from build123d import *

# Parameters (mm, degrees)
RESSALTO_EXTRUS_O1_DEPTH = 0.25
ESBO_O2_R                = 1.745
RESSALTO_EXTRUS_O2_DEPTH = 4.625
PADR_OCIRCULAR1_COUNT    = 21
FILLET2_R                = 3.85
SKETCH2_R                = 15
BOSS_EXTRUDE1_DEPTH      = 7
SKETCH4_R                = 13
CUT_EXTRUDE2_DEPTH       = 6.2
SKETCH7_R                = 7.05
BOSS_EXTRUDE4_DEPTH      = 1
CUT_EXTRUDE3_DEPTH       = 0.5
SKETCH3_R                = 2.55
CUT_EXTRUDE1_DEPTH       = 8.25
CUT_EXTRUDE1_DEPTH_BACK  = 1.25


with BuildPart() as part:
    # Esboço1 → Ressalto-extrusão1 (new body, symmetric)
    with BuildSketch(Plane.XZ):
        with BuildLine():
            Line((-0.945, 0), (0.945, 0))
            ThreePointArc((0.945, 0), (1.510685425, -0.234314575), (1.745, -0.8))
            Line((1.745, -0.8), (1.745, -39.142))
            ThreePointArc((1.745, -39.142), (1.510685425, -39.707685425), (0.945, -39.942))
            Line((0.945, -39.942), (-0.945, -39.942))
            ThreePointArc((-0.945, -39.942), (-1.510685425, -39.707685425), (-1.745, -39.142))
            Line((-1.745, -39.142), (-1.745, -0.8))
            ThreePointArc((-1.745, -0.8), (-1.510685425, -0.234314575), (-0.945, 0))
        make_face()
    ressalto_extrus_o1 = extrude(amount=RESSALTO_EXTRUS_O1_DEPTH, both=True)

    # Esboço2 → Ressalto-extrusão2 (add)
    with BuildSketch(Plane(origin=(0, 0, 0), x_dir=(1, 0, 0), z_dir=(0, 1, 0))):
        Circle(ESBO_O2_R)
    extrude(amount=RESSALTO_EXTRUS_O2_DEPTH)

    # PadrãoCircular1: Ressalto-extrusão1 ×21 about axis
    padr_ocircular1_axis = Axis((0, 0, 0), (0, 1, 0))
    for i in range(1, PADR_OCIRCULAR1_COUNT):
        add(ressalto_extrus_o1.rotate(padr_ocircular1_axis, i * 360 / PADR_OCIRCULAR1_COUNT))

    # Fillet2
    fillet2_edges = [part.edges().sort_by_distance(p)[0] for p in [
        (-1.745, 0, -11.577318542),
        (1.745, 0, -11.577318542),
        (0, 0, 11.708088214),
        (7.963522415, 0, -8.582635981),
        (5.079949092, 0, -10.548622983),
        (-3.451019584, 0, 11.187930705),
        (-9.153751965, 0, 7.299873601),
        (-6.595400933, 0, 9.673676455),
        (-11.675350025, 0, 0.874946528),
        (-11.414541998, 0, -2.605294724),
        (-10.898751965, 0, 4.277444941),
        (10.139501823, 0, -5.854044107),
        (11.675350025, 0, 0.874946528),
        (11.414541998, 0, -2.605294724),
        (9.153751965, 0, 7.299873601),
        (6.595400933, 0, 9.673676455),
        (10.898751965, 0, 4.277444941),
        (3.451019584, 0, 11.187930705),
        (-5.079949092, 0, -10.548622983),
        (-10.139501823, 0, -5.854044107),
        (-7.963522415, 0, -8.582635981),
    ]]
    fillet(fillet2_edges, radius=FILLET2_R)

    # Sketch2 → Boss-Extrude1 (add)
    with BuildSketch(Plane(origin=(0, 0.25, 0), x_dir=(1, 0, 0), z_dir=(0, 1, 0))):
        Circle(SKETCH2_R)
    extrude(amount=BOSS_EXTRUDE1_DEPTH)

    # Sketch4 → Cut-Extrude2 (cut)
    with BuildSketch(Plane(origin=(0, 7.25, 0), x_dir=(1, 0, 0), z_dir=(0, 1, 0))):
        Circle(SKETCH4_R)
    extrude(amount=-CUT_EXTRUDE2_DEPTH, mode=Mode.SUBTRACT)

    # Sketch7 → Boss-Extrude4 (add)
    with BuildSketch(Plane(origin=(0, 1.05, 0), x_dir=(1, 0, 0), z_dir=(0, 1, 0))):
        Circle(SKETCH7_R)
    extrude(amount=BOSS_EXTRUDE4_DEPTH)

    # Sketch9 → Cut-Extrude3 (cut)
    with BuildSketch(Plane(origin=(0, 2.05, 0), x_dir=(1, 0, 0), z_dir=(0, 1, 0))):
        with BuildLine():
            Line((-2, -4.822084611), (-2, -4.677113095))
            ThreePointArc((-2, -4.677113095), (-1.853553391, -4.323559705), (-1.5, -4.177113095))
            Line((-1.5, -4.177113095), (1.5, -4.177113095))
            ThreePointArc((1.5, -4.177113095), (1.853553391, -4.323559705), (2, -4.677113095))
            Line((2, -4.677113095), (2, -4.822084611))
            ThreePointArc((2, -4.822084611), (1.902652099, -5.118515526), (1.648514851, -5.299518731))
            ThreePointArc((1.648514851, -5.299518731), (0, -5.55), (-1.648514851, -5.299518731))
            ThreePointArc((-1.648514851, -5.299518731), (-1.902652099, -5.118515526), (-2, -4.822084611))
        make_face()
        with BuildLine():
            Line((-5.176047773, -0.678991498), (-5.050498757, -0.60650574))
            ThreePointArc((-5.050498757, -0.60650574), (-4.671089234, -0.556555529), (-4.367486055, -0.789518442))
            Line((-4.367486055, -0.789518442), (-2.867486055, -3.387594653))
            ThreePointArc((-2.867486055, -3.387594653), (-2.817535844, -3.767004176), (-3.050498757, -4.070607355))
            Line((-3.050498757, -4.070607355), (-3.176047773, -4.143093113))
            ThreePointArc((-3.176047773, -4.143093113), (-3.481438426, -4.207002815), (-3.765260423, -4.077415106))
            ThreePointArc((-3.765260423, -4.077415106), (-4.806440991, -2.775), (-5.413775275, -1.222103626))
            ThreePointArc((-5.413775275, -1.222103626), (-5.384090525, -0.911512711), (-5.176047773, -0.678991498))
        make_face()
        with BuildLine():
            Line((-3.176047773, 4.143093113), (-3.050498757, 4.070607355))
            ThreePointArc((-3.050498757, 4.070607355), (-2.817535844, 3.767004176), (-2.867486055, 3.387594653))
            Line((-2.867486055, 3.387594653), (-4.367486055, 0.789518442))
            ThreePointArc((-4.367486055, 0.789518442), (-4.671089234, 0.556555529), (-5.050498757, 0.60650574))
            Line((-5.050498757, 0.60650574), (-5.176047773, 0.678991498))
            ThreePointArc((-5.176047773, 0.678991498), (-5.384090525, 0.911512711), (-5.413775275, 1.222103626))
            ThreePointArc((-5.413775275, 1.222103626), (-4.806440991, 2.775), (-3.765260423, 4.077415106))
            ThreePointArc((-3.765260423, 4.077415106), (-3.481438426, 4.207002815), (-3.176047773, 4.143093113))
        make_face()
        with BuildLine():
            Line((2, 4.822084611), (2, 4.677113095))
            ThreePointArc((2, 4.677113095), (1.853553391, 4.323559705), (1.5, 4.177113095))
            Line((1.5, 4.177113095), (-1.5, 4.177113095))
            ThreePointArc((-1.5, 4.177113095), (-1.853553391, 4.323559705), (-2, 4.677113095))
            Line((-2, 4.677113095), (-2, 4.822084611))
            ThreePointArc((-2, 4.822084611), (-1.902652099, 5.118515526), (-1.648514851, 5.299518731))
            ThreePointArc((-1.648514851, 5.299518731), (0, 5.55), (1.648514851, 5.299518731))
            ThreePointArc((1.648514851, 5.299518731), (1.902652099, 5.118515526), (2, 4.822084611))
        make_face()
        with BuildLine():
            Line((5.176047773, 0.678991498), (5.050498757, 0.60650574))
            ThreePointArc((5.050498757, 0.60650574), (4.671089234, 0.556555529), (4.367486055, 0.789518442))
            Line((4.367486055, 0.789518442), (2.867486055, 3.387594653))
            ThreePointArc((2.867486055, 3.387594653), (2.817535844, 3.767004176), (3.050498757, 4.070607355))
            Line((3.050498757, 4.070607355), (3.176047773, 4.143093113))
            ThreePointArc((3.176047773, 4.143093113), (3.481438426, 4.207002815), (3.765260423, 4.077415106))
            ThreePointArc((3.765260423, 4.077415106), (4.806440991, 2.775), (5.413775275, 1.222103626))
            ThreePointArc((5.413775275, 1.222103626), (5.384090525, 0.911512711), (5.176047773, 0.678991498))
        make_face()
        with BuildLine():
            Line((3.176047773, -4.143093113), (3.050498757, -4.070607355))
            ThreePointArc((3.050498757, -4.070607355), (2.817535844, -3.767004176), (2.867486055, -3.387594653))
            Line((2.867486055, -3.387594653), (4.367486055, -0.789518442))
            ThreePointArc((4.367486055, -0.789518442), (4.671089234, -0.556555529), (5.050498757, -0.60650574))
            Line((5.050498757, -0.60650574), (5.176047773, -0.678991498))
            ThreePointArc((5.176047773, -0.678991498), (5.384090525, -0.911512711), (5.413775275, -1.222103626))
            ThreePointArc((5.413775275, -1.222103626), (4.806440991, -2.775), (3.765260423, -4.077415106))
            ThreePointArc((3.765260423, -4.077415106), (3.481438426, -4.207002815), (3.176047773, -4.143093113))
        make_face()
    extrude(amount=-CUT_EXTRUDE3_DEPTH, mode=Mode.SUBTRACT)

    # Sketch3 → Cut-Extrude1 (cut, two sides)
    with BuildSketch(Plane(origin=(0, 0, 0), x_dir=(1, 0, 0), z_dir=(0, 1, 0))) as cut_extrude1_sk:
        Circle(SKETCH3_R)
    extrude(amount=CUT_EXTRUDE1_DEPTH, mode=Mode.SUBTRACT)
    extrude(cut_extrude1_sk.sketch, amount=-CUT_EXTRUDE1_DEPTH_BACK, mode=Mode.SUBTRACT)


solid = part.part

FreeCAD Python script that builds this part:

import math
import FreeCAD as App
import Part
import Sketcher
from FreeCAD import Vector
Q = App.Units.Quantity


def edges_at(feature, points):
    """Names of the edges that pass closest to the given points."""
    edges = feature.Shape.Edges
    near = lambda p: min(range(len(edges)), key=lambda i: edges[i].distToShape(Part.Vertex(*p))[0])
    return sorted({f"Edge{near(p) + 1}" for p in points})

doc = App.newDocument("Part")
body = doc.addObject("PartDesign::Body", "Body")

sketch1 = body.newObject("Sketcher::SketchObject", "Sketch")
sketch1.AttachmentSupport = (doc.getObject("XZ_Plane"), [""])
sketch1.MapMode = "FlatFace"
sketch1.addGeometry([
    Part.LineSegment(Vector(0.9, 0, 0), Vector(-0.9, 0, 0)),
    Part.ArcOfCircle(Part.Circle(Vector(-0.9, -0.8, 0), Vector(0, 0, 1), 0.8), math.radians(90), math.radians(180)),
    Part.LineSegment(Vector(-1.7, -0.8, 0), Vector(-1.7, -39.1, 0)),
    Part.ArcOfCircle(Part.Circle(Vector(-0.9, -39.1, 0), Vector(0, 0, 1), 0.8), math.radians(180), math.radians(270)),
    Part.LineSegment(Vector(-0.9, -39.9, 0), Vector(0.9, -39.9, 0)),
    Part.ArcOfCircle(Part.Circle(Vector(0.9, -39.1, 0), Vector(0, 0, 1), 0.8), math.radians(-90), math.radians(0)),
    Part.LineSegment(Vector(1.7, -39.1, 0), Vector(1.7, -0.8, 0)),
    Part.ArcOfCircle(Part.Circle(Vector(0.9, -0.8, 0), Vector(0, 0, 1), 0.8), math.radians(0), math.radians(90)),
], False)
sketch1.addConstraint([
    Sketcher.Constraint("Tangent", 0, 2, 1, 1),
    Sketcher.Constraint("Tangent", 1, 2, 2, 1),
    Sketcher.Constraint("Tangent", 2, 2, 3, 1),
    Sketcher.Constraint("Tangent", 3, 2, 4, 1),
    Sketcher.Constraint("Tangent", 4, 2, 5, 1),
    Sketcher.Constraint("Tangent", 5, 2, 6, 1),
    Sketcher.Constraint("Tangent", 6, 2, 7, 1),
    Sketcher.Constraint("Tangent", 7, 2, 0, 1),
    Sketcher.Constraint("Horizontal", 0),
    Sketcher.Constraint("Vertical", 2),
    Sketcher.Constraint("Horizontal", 4),
    Sketcher.Constraint("Vertical", 6),
    Sketcher.Constraint("Equal", 1, 3),
    Sketcher.Constraint("Equal", 3, 5),
    Sketcher.Constraint("Equal", 5, 7),
    Sketcher.Constraint("Symmetric", 0, 2, 7, 2, -1, 1),
    Sketcher.Constraint("Radius", 1, 0.8),
    Sketcher.Constraint("DistanceX", 0, 2, 0, 1, 1.89),
    Sketcher.Constraint("DistanceY", 2, 2, 2, 1, 38.342),
])
pad1 = body.newObject("PartDesign::Pad", "Pad")
pad1.Profile = sketch1
pad1.Length = 0.5
pad1.Midplane = True

sketch2 = body.newObject("Sketcher::SketchObject", "Sketch001")
sketch2.AttachmentSupport = (doc.getObject("XZ_Plane"), [""])
sketch2.MapMode = "FlatFace"
sketch2.addGeometry(Part.Circle(Vector(0, 0, 0), Vector(0, 0, 1), 1.7), False)
sketch2.addConstraint([
    Sketcher.Constraint("Coincident", 0, 3, -1, 1),
    Sketcher.Constraint("Diameter", 0, 3.49),
])
pad2 = body.newObject("PartDesign::Pad", "Pad001")
pad2.Profile = sketch2
pad2.Length = 4.625
pad2.Reversed = True
doc.recompute()

polarpattern = body.newObject("PartDesign::PolarPattern", "PolarPattern")
polarpattern.Originals = [pad1]
polarpattern.Axis = (doc.getObject("Y_Axis"), [""])
polarpattern.Angle = 360
polarpattern.Occurrences = 21
body.Tip = polarpattern
doc.recompute()

fillet = body.newObject("PartDesign::Fillet", "Fillet")
fillet.Base = (polarpattern, edges_at(polarpattern, [
    (-1.745, 0, -11.577),
    (1.745, 0, -11.577),
    (0, 0, 11.708),
    (7.964, 0, -8.583),
    (5.08, 0, -10.549),
    (-3.451, 0, 11.188),
    (-9.154, 0, 7.3),
    (-6.595, 0, 9.674),
    (-11.675, 0, 0.875),
    (-11.415, 0, -2.605),
    (-10.899, 0, 4.277),
    (10.14, 0, -5.854),
    (11.675, 0, 0.875),
    (11.415, 0, -2.605),
    (9.154, 0, 7.3),
    (6.595, 0, 9.674),
    (10.899, 0, 4.277),
    (3.451, 0, 11.188),
    (-5.08, 0, -10.549),
    (-10.14, 0, -5.854),
    (-7.964, 0, -8.583),
]))
fillet.Radius = 3.85

sketch3 = body.newObject("Sketcher::SketchObject", "Sketch002")
sketch3.AttachmentSupport = (doc.getObject("XZ_Plane"), [""])
sketch3.MapMode = "FlatFace"
sketch3.AttachmentOffset = App.Placement(Vector(0, 0, -0.25), App.Rotation())
sketch3.addGeometry(Part.Circle(Vector(0, 0, 0), Vector(0, 0, 1), 15), False)
sketch3.addConstraint([
    Sketcher.Constraint("Coincident", 0, 3, -1, 1),
    Sketcher.Constraint("Diameter", 0, 30.0),
])
pad3 = body.newObject("PartDesign::Pad", "Pad002")
pad3.Profile = sketch3
pad3.Length = 7
pad3.Reversed = True

sketch4 = body.newObject("Sketcher::SketchObject", "Sketch003")
sketch4.AttachmentSupport = (doc.getObject("XZ_Plane"), [""])
sketch4.MapMode = "FlatFace"
sketch4.AttachmentOffset = App.Placement(Vector(0, 0, -7.25), App.Rotation())
sketch4.addGeometry(Part.Circle(Vector(0, 0, 0), Vector(0, 0, 1), 13), False)
sketch4.addConstraint([
    Sketcher.Constraint("Coincident", 0, 3, -1, 1),
    Sketcher.Constraint("Diameter", 0, 26.0),
])
pocket1 = body.newObject("PartDesign::Pocket", "Pocket")
pocket1.Profile = sketch4
pocket1.Length = 6.2
pocket1.Reversed = True

sketch5 = body.newObject("Sketcher::SketchObject", "Sketch004")
sketch5.AttachmentSupport = (doc.getObject("XZ_Plane"), [""])
sketch5.MapMode = "FlatFace"
sketch5.AttachmentOffset = App.Placement(Vector(0, 0, -1.05), App.Rotation())
sketch5.addGeometry(Part.Circle(Vector(0, 0, 0), Vector(0, 0, 1), 7), False)
sketch5.addConstraint([
    Sketcher.Constraint("Coincident", 0, 3, -1, 1),
    Sketcher.Constraint("Diameter", 0, 14.1),
])
pad4 = body.newObject("PartDesign::Pad", "Pad003")
pad4.Profile = sketch5
pad4.Length = 1
pad4.Reversed = True

sketch6 = body.newObject("Sketcher::SketchObject", "Sketch005")
sketch6.AttachmentSupport = (doc.getObject("XZ_Plane"), [""])
sketch6.MapMode = "FlatFace"
sketch6.AttachmentOffset = App.Placement(Vector(0, 0, -2.05), App.Rotation())
sketch6.addGeometry([
    Part.LineSegment(Vector(-2, 4.68, 0), Vector(-2, 4.82, 0)),
    Part.ArcOfCircle(Part.Circle(Vector(-1.5, 4.82, 0), Vector(0, 0, 1), 0.5), math.radians(107), math.radians(180)),
    Part.ArcOfCircle(Part.Circle(Vector(0, 0, 0), Vector(0, 0, 1), 5.55), math.radians(73), math.radians(107)),
    Part.ArcOfCircle(Part.Circle(Vector(1.5, 4.82, 0), Vector(0, 0, 1), 0.5), math.radians(0), math.radians(73)),
    Part.LineSegment(Vector(2, 4.82, 0), Vector(2, 4.68, 0)),
    Part.ArcOfCircle(Part.Circle(Vector(1.5, 4.68, 0), Vector(0, 0, 1), 0.5), math.radians(-90), math.radians(0)),
    Part.LineSegment(Vector(1.5, 4.18, 0), Vector(-1.5, 4.18, 0)),
    Part.ArcOfCircle(Part.Circle(Vector(-1.5, 4.68, 0), Vector(0, 0, 1), 0.5), math.radians(180), math.radians(270)),
    Part.LineSegment(Vector(-5.05, 0.61, 0), Vector(-5.18, 0.68, 0)),
    Part.ArcOfCircle(Part.Circle(Vector(-4.93, 1.11, 0), Vector(0, 0, 1), 0.5), math.radians(167), math.radians(240)),
    Part.ArcOfCircle(Part.Circle(Vector(0, 0, 0), Vector(0, 0, 1), 5.55), math.radians(133), math.radians(167)),
    Part.ArcOfCircle(Part.Circle(Vector(-3.43, 3.71, 0), Vector(0, 0, 1), 0.5), math.radians(60), math.radians(133)),
    Part.LineSegment(Vector(-3.18, 4.14, 0), Vector(-3.05, 4.07, 0)),
    Part.ArcOfCircle(Part.Circle(Vector(-3.3, 3.64, 0), Vector(0, 0, 1), 0.5), math.radians(-30), math.radians(60)),
    Part.LineSegment(Vector(-2.87, 3.39, 0), Vector(-4.37, 0.79, 0)),
    Part.ArcOfCircle(Part.Circle(Vector(-4.8, 1.04, 0), Vector(0, 0, 1), 0.5), math.radians(-120), math.radians(-30)),
    Part.LineSegment(Vector(-3.05, -4.07, 0), Vector(-3.18, -4.14, 0)),
    Part.ArcOfCircle(Part.Circle(Vector(-3.43, -3.71, 0), Vector(0, 0, 1), 0.5), math.radians(-133), math.radians(-60)),
    Part.ArcOfCircle(Part.Circle(Vector(0, 0, 0), Vector(0, 0, 1), 5.55), math.radians(-167), math.radians(-133)),
    Part.ArcOfCircle(Part.Circle(Vector(-4.93, -1.11, 0), Vector(0, 0, 1), 0.5), math.radians(120), math.radians(193)),
    Part.LineSegment(Vector(-5.18, -0.68, 0), Vector(-5.05, -0.61, 0)),
    Part.ArcOfCircle(Part.Circle(Vector(-4.8, -1.04, 0), Vector(0, 0, 1), 0.5), math.radians(30), math.radians(120)),
    Part.LineSegment(Vector(-4.37, -0.79, 0), Vector(-2.87, -3.39, 0)),
    Part.ArcOfCircle(Part.Circle(Vector(-3.3, -3.64, 0), Vector(0, 0, 1), 0.5), math.radians(-60), math.radians(30)),
    Part.LineSegment(Vector(2, -4.68, 0), Vector(2, -4.82, 0)),
    Part.ArcOfCircle(Part.Circle(Vector(1.5, -4.82, 0), Vector(0, 0, 1), 0.5), math.radians(-73), math.radians(0)),
    Part.ArcOfCircle(Part.Circle(Vector(0, 0, 0), Vector(0, 0, 1), 5.55), math.radians(-107), math.radians(-73)),
    Part.ArcOfCircle(Part.Circle(Vector(-1.5, -4.82, 0), Vector(0, 0, 1), 0.5), math.radians(180), math.radians(253)),
    Part.LineSegment(Vector(-2, -4.82, 0), Vector(-2, -4.68, 0)),
    Part.ArcOfCircle(Part.Circle(Vector(-1.5, -4.68, 0), Vector(0, 0, 1), 0.5), math.radians(90), math.radians(180)),
    Part.LineSegment(Vector(-1.5, -4.18, 0), Vector(1.5, -4.18, 0)),
    Part.ArcOfCircle(Part.Circle(Vector(1.5, -4.68, 0), Vector(0, 0, 1), 0.5), math.radians(0), math.radians(90)),
    Part.LineSegment(Vector(5.05, -0.61, 0), Vector(5.18, -0.68, 0)),
    Part.ArcOfCircle(Part.Circle(Vector(4.93, -1.11, 0), Vector(0, 0, 1), 0.5), math.radians(-13), math.radians(60)),
    Part.ArcOfCircle(Part.Circle(Vector(0, 0, 0), Vector(0, 0, 1), 5.55), math.radians(-47), math.radians(-13)),
    Part.ArcOfCircle(Part.Circle(Vector(3.43, -3.71, 0), Vector(0, 0, 1), 0.5), math.radians(-120), math.radians(-47)),
    Part.LineSegment(Vector(3.18, -4.14, 0), Vector(3.05, -4.07, 0)),
    Part.ArcOfCircle(Part.Circle(Vector(3.3, -3.64, 0), Vector(0, 0, 1), 0.5), math.radians(150), math.radians(240)),
    Part.LineSegment(Vector(2.87, -3.39, 0), Vector(4.37, -0.79, 0)),
    Part.ArcOfCircle(Part.Circle(Vector(4.8, -1.04, 0), Vector(0, 0, 1), 0.5), math.radians(60), math.radians(150)),
    Part.LineSegment(Vector(3.05, 4.07, 0), Vector(3.18, 4.14, 0)),
    Part.ArcOfCircle(Part.Circle(Vector(3.43, 3.71, 0), Vector(0, 0, 1), 0.5), math.radians(47), math.radians(120)),
    Part.ArcOfCircle(Part.Circle(Vector(0, 0, 0), Vector(0, 0, 1), 5.55), math.radians(13), math.radians(47)),
    Part.ArcOfCircle(Part.Circle(Vector(4.93, 1.11, 0), Vector(0, 0, 1), 0.5), math.radians(-60), math.radians(13)),
    Part.LineSegment(Vector(5.18, 0.68, 0), Vector(5.05, 0.61, 0)),
    Part.ArcOfCircle(Part.Circle(Vector(4.8, 1.04, 0), Vector(0, 0, 1), 0.5), math.radians(-150), math.radians(-60)),
    Part.LineSegment(Vector(4.37, 0.79, 0), Vector(2.87, 3.39, 0)),
    Part.ArcOfCircle(Part.Circle(Vector(3.3, 3.64, 0), Vector(0, 0, 1), 0.5), math.radians(120), math.radians(210)),
], False)
sketch6.addConstraint([
    Sketcher.Constraint("Tangent", 0, 2, 1, 2),
    Sketcher.Constraint("Tangent", 1, 1, 2, 2),
    Sketcher.Constraint("Tangent", 2, 1, 3, 2),
    Sketcher.Constraint("Tangent", 3, 1, 4, 1),
    Sketcher.Constraint("Tangent", 4, 2, 5, 2),
    Sketcher.Constraint("Tangent", 5, 1, 6, 1),
    Sketcher.Constraint("Tangent", 6, 2, 7, 2),
    Sketcher.Constraint("Tangent", 7, 1, 0, 1),
    Sketcher.Constraint("Tangent", 8, 2, 9, 2),
    Sketcher.Constraint("Tangent", 9, 1, 10, 2),
    Sketcher.Constraint("Tangent", 10, 1, 11, 2),
    Sketcher.Constraint("Tangent", 11, 1, 12, 1),
    Sketcher.Constraint("Tangent", 12, 2, 13, 2),
    Sketcher.Constraint("Tangent", 13, 1, 14, 1),
    Sketcher.Constraint("Tangent", 14, 2, 15, 2),
    Sketcher.Constraint("Tangent", 15, 1, 8, 1),
    Sketcher.Constraint("Tangent", 16, 2, 17, 2),
    Sketcher.Constraint("Tangent", 17, 1, 18, 2),
    Sketcher.Constraint("Tangent", 18, 1, 19, 2),
    Sketcher.Constraint("Tangent", 19, 1, 20, 1),
    Sketcher.Constraint("Tangent", 20, 2, 21, 2),
    Sketcher.Constraint("Tangent", 21, 1, 22, 1),
    Sketcher.Constraint("Tangent", 22, 2, 23, 2),
    Sketcher.Constraint("Tangent", 23, 1, 16, 1),
    Sketcher.Constraint("Tangent", 24, 2, 25, 2),
    Sketcher.Constraint("Tangent", 25, 1, 26, 2),
    Sketcher.Constraint("Tangent", 26, 1, 27, 2),
    Sketcher.Constraint("Tangent", 27, 1, 28, 1),
    Sketcher.Constraint("Tangent", 28, 2, 29, 2),
    Sketcher.Constraint("Tangent", 29, 1, 30, 1),
    Sketcher.Constraint("Tangent", 30, 2, 31, 2),
    Sketcher.Constraint("Tangent", 31, 1, 24, 1),
    Sketcher.Constraint("Tangent", 32, 2, 33, 2),
    Sketcher.Constraint("Tangent", 33, 1, 34, 2),
    Sketcher.Constraint("Tangent", 34, 1, 35, 2),
    Sketcher.Constraint("Tangent", 35, 1, 36, 1),
    Sketcher.Constraint("Tangent", 36, 2, 37, 2),
    Sketcher.Constraint("Tangent", 37, 1, 38, 1),
    Sketcher.Constraint("Tangent", 38, 2, 39, 2),
    Sketcher.Constraint("Tangent", 39, 1, 32, 1),
    Sketcher.Constraint("Tangent", 40, 2, 41, 2),
    Sketcher.Constraint("Tangent", 41, 1, 42, 2),
    Sketcher.Constraint("Tangent", 42, 1, 43, 2),
    Sketcher.Constraint("Tangent", 43, 1, 44, 1),
    Sketcher.Constraint("Tangent", 44, 2, 45, 2),
    Sketcher.Constraint("Tangent", 45, 1, 46, 1),
    Sketcher.Constraint("Tangent", 46, 2, 47, 2),
    Sketcher.Constraint("Tangent", 47, 1, 40, 1),
    Sketcher.Constraint("Vertical", 0),
    Sketcher.Constraint("Vertical", 4),
    Sketcher.Constraint("Horizontal", 6),
    Sketcher.Constraint("Vertical", 24),
    Sketcher.Constraint("Vertical", 28),
    Sketcher.Constraint("Horizontal", 30),
    Sketcher.Constraint("Coincident", 2, 3, -1, 1),
    Sketcher.Constraint("Coincident", 10, 3, -1, 1),
    Sketcher.Constraint("Coincident", 18, 3, -1, 1),
    Sketcher.Constraint("Coincident", 26, 3, -1, 1),
    Sketcher.Constraint("Coincident", 34, 3, -1, 1),
    Sketcher.Constraint("Coincident", 42, 3, -1, 1),
    Sketcher.Constraint("Equal", 1, 3),
    Sketcher.Constraint("Equal", 3, 5),
    Sketcher.Constraint("Equal", 5, 7),
    Sketcher.Constraint("Equal", 7, 9),
    Sketcher.Constraint("Equal", 2, 10),
    Sketcher.Constraint("Equal", 9, 11),
    Sketcher.Constraint("Equal", 11, 13),
    Sketcher.Constraint("Equal", 13, 15),
    Sketcher.Constraint("Equal", 15, 17),
    Sketcher.Constraint("Equal", 10, 18),
    Sketcher.Constraint("Equal", 17, 19),
    Sketcher.Constraint("Equal", 19, 21),
    Sketcher.Constraint("Equal", 21, 23),
    Sketcher.Constraint("Equal", 23, 25),
    Sketcher.Constraint("Equal", 18, 26),
    Sketcher.Constraint("Equal", 25, 27),
    Sketcher.Constraint("Equal", 27, 29),
    Sketcher.Constraint("Equal", 29, 31),
    Sketcher.Constraint("Equal", 31, 33),
    Sketcher.Constraint("Equal", 26, 34),
    Sketcher.Constraint("Equal", 33, 35),
    Sketcher.Constraint("Equal", 35, 37),
    Sketcher.Constraint("Equal", 37, 39),
    Sketcher.Constraint("Equal", 39, 41),
    Sketcher.Constraint("Equal", 34, 42),
    Sketcher.Constraint("Equal", 41, 43),
    Sketcher.Constraint("Equal", 43, 45),
    Sketcher.Constraint("Equal", 45, 47),
    Sketcher.Constraint("Symmetric", 5, 3, 29, 3, -1, 1),
    Sketcher.Constraint("Symmetric", 13, 3, 37, 3, -1, 1),
    Sketcher.Constraint("Symmetric", 15, 3, 39, 3, -1, 1),
    Sketcher.Constraint("Symmetric", 21, 3, 45, 3, -1, 1),
    Sketcher.Constraint("Symmetric", 23, 3, 47, 3, -1, 1),
    Sketcher.Constraint("Symmetric", 23, 3, 37, 3, -2),
    Sketcher.Constraint("Symmetric", 21, 3, 39, 3, -2),
    Sketcher.Constraint("Parallel", 8, 12),
    Sketcher.Constraint("Perpendicular", 12, 14),
    Sketcher.Constraint("Parallel", 16, 20),
    Sketcher.Constraint("Perpendicular", 20, 22),
    Sketcher.Constraint("Perpendicular", 14, 32),
    Sketcher.Constraint("Parallel", 32, 36),
    Sketcher.Constraint("Perpendicular", 22, 40),
    Sketcher.Constraint("Parallel", 40, 44),
    Sketcher.Constraint("Horizontal", 1, 3, 3, 3),
    Sketcher.Constraint("Horizontal", 25, 3, 27, 3),
    Sketcher.Constraint("Equal", 8, 12),
    Sketcher.Constraint("Radius", 1, 0.5),
    Sketcher.Constraint("DistanceX", 6, 2, 6, 1, 3.0),
    Sketcher.Constraint("Angle", 8, Q("150 deg")),
    Sketcher.Constraint("Radius", 2, 5.55),
    Sketcher.Constraint("Distance", 14, 3.0),
    Sketcher.Constraint("DistanceY", 0, 1, 0, 2, 0.144972),
    Sketcher.Constraint("DistanceX", 13, 3, -1, 1, 3.300499),
])
pocket2 = body.newObject("PartDesign::Pocket", "Pocket001")
pocket2.Profile = sketch6
pocket2.Length = 0.5
pocket2.Reversed = True

sketch7 = body.newObject("Sketcher::SketchObject", "Sketch006")
sketch7.AttachmentSupport = (doc.getObject("XZ_Plane"), [""])
sketch7.MapMode = "FlatFace"
sketch7.addGeometry(Part.Circle(Vector(0, 0, 0), Vector(0, 0, 1), 2.5), False)
sketch7.addConstraint([
    Sketcher.Constraint("Coincident", 0, 3, -1, 1),
    Sketcher.Constraint("Diameter", 0, 5.1),
])
pocket3 = body.newObject("PartDesign::Pocket", "Pocket002")
pocket3.Profile = sketch7
pocket3.Type = "ThroughAll"
pocket3.Midplane = True

doc.recompute()
